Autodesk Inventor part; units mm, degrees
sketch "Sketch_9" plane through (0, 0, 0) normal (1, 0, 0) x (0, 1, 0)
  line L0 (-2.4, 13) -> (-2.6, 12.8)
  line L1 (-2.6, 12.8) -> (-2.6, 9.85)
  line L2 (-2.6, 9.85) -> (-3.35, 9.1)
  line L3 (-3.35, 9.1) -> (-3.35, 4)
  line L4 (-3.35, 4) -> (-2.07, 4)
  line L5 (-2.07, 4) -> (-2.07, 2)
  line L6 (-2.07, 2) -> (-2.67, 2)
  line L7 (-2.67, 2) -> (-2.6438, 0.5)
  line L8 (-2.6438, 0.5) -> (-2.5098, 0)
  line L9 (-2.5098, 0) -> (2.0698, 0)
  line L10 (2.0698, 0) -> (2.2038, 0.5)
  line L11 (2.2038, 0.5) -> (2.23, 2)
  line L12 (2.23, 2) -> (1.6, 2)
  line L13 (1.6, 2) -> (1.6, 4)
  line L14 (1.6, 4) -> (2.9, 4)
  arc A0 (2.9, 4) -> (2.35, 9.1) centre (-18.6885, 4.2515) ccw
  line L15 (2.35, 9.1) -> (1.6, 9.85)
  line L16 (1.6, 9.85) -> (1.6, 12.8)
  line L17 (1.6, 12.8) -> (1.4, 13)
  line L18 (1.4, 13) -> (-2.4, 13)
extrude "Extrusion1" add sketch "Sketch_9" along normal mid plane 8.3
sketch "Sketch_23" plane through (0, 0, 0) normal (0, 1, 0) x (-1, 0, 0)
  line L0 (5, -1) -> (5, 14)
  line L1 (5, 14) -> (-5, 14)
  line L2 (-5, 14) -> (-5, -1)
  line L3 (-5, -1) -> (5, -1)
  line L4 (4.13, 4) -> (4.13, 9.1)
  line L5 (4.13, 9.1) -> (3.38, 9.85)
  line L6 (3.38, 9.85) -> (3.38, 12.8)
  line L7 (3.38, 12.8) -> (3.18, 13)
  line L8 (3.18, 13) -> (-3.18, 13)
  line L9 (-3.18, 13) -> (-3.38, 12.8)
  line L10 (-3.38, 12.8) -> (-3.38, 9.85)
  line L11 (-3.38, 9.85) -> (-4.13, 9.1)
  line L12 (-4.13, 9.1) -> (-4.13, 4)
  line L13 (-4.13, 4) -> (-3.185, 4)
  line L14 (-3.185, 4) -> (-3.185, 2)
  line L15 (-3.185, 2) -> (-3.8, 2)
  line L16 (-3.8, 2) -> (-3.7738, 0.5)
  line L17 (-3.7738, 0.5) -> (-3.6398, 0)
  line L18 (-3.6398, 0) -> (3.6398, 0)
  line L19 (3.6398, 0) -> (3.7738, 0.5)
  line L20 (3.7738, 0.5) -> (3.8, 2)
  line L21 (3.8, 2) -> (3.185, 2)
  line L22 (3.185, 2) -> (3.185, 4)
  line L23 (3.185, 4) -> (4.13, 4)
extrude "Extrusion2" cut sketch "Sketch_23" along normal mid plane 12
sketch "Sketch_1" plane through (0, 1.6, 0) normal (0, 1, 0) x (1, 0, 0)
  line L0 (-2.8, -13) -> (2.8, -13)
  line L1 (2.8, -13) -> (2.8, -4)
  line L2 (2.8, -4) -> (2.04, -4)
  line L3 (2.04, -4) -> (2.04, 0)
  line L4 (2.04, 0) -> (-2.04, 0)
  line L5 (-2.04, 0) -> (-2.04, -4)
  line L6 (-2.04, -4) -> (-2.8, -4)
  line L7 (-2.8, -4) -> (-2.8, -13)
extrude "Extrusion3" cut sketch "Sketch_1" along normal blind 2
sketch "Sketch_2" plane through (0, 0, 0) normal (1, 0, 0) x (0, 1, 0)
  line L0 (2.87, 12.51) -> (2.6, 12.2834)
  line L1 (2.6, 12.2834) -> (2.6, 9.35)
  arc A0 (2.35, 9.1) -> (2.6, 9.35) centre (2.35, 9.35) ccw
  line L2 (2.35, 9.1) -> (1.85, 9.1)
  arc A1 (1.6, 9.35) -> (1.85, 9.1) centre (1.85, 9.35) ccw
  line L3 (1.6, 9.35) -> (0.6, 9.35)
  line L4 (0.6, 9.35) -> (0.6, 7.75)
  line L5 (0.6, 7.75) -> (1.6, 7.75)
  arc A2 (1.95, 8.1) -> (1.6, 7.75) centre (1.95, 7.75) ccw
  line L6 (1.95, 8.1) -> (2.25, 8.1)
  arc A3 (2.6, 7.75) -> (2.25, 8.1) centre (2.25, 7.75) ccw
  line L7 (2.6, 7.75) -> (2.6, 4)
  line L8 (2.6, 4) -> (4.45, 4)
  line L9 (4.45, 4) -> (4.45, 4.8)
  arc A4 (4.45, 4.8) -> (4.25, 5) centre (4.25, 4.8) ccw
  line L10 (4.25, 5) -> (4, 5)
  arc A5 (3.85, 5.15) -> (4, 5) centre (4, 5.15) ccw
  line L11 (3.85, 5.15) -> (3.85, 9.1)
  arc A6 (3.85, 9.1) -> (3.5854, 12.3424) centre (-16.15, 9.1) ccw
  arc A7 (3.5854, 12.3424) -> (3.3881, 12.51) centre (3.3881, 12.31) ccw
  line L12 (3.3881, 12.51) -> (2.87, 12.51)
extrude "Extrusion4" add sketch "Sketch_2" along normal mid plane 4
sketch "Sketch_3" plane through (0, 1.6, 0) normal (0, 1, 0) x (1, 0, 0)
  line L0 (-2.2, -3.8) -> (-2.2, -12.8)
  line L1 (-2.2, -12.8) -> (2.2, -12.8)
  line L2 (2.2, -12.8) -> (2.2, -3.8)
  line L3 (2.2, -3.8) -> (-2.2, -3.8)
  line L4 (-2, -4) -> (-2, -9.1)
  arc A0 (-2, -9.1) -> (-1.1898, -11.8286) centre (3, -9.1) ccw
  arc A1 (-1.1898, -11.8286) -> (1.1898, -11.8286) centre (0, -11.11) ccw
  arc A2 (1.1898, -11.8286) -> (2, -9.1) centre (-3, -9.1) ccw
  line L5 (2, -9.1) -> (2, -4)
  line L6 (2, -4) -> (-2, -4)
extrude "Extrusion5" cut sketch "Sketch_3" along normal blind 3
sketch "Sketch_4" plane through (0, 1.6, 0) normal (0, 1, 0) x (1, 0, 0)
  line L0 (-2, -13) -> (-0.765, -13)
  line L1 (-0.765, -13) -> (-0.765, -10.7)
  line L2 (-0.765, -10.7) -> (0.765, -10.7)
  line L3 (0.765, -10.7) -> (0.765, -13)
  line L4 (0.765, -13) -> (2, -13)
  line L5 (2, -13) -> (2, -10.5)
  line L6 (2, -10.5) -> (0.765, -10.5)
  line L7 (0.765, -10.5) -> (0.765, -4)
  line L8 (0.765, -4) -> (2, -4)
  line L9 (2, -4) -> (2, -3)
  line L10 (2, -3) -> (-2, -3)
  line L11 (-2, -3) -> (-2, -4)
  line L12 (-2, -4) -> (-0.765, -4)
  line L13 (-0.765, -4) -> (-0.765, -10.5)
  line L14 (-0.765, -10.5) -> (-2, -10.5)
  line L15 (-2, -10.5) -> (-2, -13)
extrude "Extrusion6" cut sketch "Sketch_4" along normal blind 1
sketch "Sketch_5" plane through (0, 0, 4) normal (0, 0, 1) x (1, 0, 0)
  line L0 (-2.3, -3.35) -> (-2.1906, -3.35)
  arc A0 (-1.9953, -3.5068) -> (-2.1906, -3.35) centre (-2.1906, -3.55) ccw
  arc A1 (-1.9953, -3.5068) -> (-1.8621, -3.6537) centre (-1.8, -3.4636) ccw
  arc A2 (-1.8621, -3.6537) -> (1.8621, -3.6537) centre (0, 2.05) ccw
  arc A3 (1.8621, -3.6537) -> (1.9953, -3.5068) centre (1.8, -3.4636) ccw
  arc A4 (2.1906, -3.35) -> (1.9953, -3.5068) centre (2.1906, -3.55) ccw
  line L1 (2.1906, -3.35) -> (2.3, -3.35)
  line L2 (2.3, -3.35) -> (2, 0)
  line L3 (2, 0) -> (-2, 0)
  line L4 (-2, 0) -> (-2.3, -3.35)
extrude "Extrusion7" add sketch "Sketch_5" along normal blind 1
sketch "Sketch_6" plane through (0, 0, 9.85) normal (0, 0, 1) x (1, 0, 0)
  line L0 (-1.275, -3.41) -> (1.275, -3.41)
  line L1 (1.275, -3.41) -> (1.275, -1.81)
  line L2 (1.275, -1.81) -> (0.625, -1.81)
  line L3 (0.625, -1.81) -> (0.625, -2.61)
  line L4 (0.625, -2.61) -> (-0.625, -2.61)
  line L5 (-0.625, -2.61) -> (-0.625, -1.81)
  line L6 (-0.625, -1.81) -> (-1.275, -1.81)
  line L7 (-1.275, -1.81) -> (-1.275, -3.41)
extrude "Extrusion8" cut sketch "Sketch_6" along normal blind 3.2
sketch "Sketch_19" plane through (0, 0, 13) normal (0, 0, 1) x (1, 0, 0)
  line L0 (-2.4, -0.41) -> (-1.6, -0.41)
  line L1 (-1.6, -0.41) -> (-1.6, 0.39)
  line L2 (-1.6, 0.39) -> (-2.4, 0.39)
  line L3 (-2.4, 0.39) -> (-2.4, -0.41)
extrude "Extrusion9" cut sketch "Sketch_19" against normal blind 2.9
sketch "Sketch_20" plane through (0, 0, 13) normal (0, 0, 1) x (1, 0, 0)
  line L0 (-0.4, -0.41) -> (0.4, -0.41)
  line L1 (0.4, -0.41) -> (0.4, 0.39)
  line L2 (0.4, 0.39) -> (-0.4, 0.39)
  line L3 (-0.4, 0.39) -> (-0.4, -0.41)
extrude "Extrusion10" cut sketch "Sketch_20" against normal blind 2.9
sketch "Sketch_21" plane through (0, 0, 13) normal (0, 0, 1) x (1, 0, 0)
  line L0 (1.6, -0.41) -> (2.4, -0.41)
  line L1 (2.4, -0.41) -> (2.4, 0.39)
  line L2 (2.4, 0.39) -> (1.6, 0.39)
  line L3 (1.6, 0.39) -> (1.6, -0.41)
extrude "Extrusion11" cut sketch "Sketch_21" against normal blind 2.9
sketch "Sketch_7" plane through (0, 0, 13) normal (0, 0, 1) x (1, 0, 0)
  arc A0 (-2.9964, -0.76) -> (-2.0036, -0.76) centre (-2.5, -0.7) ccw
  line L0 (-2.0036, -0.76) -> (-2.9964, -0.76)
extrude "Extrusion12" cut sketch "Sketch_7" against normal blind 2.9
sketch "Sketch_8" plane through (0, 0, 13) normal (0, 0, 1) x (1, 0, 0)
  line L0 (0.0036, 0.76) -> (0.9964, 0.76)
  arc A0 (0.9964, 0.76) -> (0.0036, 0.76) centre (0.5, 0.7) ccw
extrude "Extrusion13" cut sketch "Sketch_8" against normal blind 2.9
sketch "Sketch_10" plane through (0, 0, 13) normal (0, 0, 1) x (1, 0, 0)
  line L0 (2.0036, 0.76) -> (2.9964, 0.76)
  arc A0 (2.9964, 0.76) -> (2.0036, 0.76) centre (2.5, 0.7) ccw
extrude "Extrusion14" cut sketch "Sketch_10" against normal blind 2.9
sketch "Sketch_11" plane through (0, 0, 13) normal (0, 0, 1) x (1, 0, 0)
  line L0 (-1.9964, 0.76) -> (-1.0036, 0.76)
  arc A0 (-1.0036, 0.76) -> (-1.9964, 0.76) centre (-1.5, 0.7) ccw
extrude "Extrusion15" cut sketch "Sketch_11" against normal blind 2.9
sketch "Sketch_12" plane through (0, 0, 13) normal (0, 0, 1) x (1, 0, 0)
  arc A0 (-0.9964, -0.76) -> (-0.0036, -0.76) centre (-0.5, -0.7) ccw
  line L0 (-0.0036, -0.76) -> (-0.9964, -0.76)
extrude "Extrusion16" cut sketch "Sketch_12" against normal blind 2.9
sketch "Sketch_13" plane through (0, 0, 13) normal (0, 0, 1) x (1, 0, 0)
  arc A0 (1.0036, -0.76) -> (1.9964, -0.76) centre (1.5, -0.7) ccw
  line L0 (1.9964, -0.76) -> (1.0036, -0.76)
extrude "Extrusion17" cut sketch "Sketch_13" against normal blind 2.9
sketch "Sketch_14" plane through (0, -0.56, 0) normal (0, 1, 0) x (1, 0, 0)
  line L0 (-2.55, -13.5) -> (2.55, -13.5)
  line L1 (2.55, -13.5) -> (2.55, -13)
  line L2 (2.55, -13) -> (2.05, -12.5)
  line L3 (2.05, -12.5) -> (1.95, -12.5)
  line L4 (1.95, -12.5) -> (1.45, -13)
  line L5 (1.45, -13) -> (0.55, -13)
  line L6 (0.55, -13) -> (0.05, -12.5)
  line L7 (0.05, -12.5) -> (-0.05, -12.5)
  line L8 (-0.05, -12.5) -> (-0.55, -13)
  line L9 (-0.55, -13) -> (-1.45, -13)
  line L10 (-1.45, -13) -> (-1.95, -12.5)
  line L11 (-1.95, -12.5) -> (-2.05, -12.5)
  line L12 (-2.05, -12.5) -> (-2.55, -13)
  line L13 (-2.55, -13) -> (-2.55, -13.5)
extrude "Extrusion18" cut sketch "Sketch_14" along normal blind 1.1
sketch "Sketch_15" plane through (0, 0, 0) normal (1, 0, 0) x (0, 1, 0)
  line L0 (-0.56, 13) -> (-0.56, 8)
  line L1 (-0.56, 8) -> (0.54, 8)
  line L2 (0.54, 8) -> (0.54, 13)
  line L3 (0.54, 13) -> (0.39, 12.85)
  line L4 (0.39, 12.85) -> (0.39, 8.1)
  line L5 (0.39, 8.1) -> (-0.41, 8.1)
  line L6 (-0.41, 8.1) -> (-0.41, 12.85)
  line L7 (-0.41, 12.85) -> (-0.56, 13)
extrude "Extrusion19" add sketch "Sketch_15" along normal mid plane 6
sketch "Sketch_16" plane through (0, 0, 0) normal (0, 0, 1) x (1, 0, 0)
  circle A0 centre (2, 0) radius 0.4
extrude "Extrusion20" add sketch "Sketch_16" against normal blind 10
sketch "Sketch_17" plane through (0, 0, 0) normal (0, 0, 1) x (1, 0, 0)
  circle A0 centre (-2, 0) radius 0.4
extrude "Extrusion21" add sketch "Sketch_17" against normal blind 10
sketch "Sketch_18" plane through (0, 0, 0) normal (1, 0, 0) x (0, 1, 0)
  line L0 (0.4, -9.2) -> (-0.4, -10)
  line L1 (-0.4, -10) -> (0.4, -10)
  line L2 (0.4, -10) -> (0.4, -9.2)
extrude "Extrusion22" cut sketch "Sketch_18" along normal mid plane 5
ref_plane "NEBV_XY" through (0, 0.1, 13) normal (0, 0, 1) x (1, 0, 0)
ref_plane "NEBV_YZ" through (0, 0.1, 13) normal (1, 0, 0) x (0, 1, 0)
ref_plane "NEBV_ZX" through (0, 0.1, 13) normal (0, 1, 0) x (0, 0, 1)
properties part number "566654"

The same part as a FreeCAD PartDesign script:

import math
import FreeCAD as App
import Part
import Sketcher

V = App.Vector
Q = App.Units.Quantity


def add_polygon(sketch, points):
    """Adds a closed chain of lines whose ends are joined by coincident constraints."""
    first, n = sketch.GeometryCount, len(points)
    for a, b in zip(points, points[1:] + points[:1]):
        sketch.addGeometry(Part.LineSegment(App.Vector(*a, 0), App.Vector(*b, 0)), False)
    for i in range(n):
        sketch.addConstraint(Sketcher.Constraint("Coincident", first + i, 2, first + (i + 1) % n, 1))

doc = App.newDocument("Part")
body = doc.addObject("PartDesign::Body", "Body")

sketch1 = body.newObject("Sketcher::SketchObject", "Sketch")
sketch1.AttachmentSupport = (doc.getObject("YZ_Plane"), [""])
sketch1.MapMode = "FlatFace"
sketch1.addGeometry([
    Part.LineSegment(V(1.4, 13, 0), V(-2.4, 13, 0)),
    Part.LineSegment(V(-2.4, 13, 0), V(-2.6, 12.8, 0)),
    Part.LineSegment(V(-2.6, 12.8, 0), V(-2.6, 9.85, 0)),
    Part.LineSegment(V(-2.6, 9.85, 0), V(-3.35, 9.1, 0)),
    Part.LineSegment(V(-3.35, 9.1, 0), V(-3.35, 4, 0)),
    Part.LineSegment(V(-3.35, 4, 0), V(-2.07, 4, 0)),
    Part.LineSegment(V(-2.07, 4, 0), V(-2.07, 2, 0)),
    Part.LineSegment(V(-2.07, 2, 0), V(-2.67, 2, 0)),
    Part.LineSegment(V(-2.67, 2, 0), V(-2.64, 0.5, 0)),
    Part.LineSegment(V(-2.64, 0.5, 0), V(-2.51, 0, 0)),
    Part.LineSegment(V(-2.51, 0, 0), V(2.07, 0, 0)),
    Part.LineSegment(V(2.07, 0, 0), V(2.2, 0.5, 0)),
    Part.LineSegment(V(2.2, 0.5, 0), V(2.23, 2, 0)),
    Part.LineSegment(V(2.23, 2, 0), V(1.6, 2, 0)),
    Part.LineSegment(V(1.6, 2, 0), V(1.6, 4, 0)),
    Part.LineSegment(V(1.6, 4, 0), V(2.9, 4, 0)),
    Part.ArcOfCircle(Part.Circle(V(-18.69, 4.25, 0), V(0, 0, 1), 21.59), math.radians(-0.67), math.radians(12.98)),
    Part.LineSegment(V(2.35, 9.1, 0), V(1.6, 9.85, 0)),
    Part.LineSegment(V(1.6, 9.85, 0), V(1.6, 12.8, 0)),
    Part.LineSegment(V(1.6, 12.8, 0), V(1.4, 13, 0)),
], False)
sketch1.addConstraint([
    Sketcher.Constraint("Coincident", 0, 2, 1, 1),
    Sketcher.Constraint("Coincident", 1, 2, 2, 1),
    Sketcher.Constraint("Coincident", 2, 2, 3, 1),
    Sketcher.Constraint("Coincident", 3, 2, 4, 1),
    Sketcher.Constraint("Coincident", 4, 2, 5, 1),
    Sketcher.Constraint("Coincident", 5, 2, 6, 1),
    Sketcher.Constraint("Coincident", 6, 2, 7, 1),
    Sketcher.Constraint("Coincident", 7, 2, 8, 1),
    Sketcher.Constraint("Coincident", 8, 2, 9, 1),
    Sketcher.Constraint("Coincident", 9, 2, 10, 1),
    Sketcher.Constraint("Coincident", 10, 2, 11, 1),
    Sketcher.Constraint("Coincident", 11, 2, 12, 1),
    Sketcher.Constraint("Coincident", 12, 2, 13, 1),
    Sketcher.Constraint("Coincident", 13, 2, 14, 1),
    Sketcher.Constraint("Coincident", 14, 2, 15, 1),
    Sketcher.Constraint("Coincident", 15, 2, 16, 1),
    Sketcher.Constraint("Coincident", 16, 2, 17, 1),
    Sketcher.Constraint("Coincident", 17, 2, 18, 1),
    Sketcher.Constraint("Coincident", 18, 2, 19, 1),
    Sketcher.Constraint("Coincident", 19, 2, 0, 1),
    Sketcher.Constraint("Horizontal", 0),
    Sketcher.Constraint("Vertical", 2),
    Sketcher.Constraint("Vertical", 4),
    Sketcher.Constraint("Horizontal", 5),
    Sketcher.Constraint("Vertical", 6),
    Sketcher.Constraint("Horizontal", 7),
    Sketcher.Constraint("Horizontal", 10),
    Sketcher.Constraint("Horizontal", 13),
    Sketcher.Constraint("Vertical", 14),
    Sketcher.Constraint("Horizontal", 15),
    Sketcher.Constraint("Vertical", 18),
    Sketcher.Constraint("PointOnObject", 9, 2, -1),
    Sketcher.Constraint("Parallel", 1, 3),
    Sketcher.Constraint("Perpendicular", 3, 17),
    Sketcher.Constraint("Parallel", 17, 19),
    Sketcher.Constraint("Horizontal", 8, 2, 11, 2),
    Sketcher.Constraint("Horizontal", 7, 2, 12, 2),
    Sketcher.Constraint("Horizontal", 5, 2, 14, 2),
    Sketcher.Constraint("Horizontal", 3, 2, 16, 2),
    Sketcher.Constraint("Horizontal", 2, 2, 17, 2),
    Sketcher.Constraint("Horizontal", 1, 2, 18, 2),
    Sketcher.Constraint("Vertical", 14, 2, 17, 2),
    Sketcher.Constraint("Equal", 9, 11),
    Sketcher.Constraint("Equal", 8, 12),
    Sketcher.Constraint("Equal", 3, 17),
    Sketcher.Constraint("DistanceY", 6, 2, 6, 1, 2.0),
    Sketcher.Constraint("Angle", 8, Q("-88.9993 deg")),
    Sketcher.Constraint("Radius", 16, 21.59),
    Sketcher.Constraint("DistanceX", 0, 2, 0, 1, 3.8),
    Sketcher.Constraint("DistanceX", 7, 2, 7, 1, 0.6),
    Sketcher.Constraint("DistanceX", 15, 1, 15, 2, 1.3),
    Sketcher.Constraint("DistanceY", 4, 2, 4, 1, 5.1),
    Sketcher.Constraint("DistanceY", -1, 1, 0, 2, 13.0),
    Sketcher.Constraint("DistanceY", -1, 1, 4, 2, 4.0),
    Sketcher.Constraint("DistanceX", 0, 2, 17, 2, 4.0),
    Sketcher.Constraint("DistanceX", 5, 1, 5, 2, 1.28),
    Sketcher.Constraint("DistanceX", 13, 2, 13, 1, 0.63),
    Sketcher.Constraint("DistanceY", 2, 2, 2, 1, 2.95),
    Sketcher.Constraint("DistanceX", 0, 2, -1, 1, 2.4),
    Sketcher.Constraint("DistanceY", -1, 1, 8, 2, 0.5),
    Sketcher.Constraint("DistanceX", 10, 1, 10, 2, 4.5796),
])
pad1 = body.newObject("PartDesign::Pad", "Pad")
pad1.Profile = sketch1
pad1.Length = 8.3
pad1.Midplane = True

sketch2 = body.newObject("Sketcher::SketchObject", "Sketch001")
sketch2.AttachmentSupport = (doc.getObject("XZ_Plane"), [""])
sketch2.MapMode = "FlatFace"
add_polygon(sketch2, [(5, -1), (-5, -1), (-5, 14), (5, 14)])
add_polygon(sketch2, [(-4.13, 9.1), (-4.13, 4), (-3.19, 4), (-3.19, 2), (-3.8, 2), (-3.77, 0.5), (-3.64, 0), (3.64, 0), (3.77, 0.5), (3.8, 2), (3.19, 2), (3.19, 4), (4.13, 4), (4.13, 9.1), (3.38, 9.85), (3.38, 12.8), (3.18, 13), (-3.18, 13), (-3.38, 12.8), (-3.38, 9.85)])
sketch2.addConstraint([
    Sketcher.Constraint("Horizontal", 0),
    Sketcher.Constraint("Vertical", 1),
    Sketcher.Constraint("Horizontal", 2),
    Sketcher.Constraint("Vertical", 3),
    Sketcher.Constraint("Vertical", 4),
    Sketcher.Constraint("Horizontal", 5),
    Sketcher.Constraint("Vertical", 6),
    Sketcher.Constraint("Horizontal", 7),
    Sketcher.Constraint("Horizontal", 10),
    Sketcher.Constraint("Horizontal", 13),
    Sketcher.Constraint("Vertical", 14),
    Sketcher.Constraint("Horizontal", 15),
    Sketcher.Constraint("Vertical", 16),
    Sketcher.Constraint("Vertical", 18),
    Sketcher.Constraint("Horizontal", 20),
    Sketcher.Constraint("Vertical", 22),
    Sketcher.Constraint("Symmetric", 9, 2, 10, 2, -1, 1),
    Sketcher.Constraint("Symmetric", 8, 2, 11, 2, -2),
    Sketcher.Constraint("Symmetric", 7, 2, 12, 2, -2),
    Sketcher.Constraint("Symmetric", 5, 2, 14, 2, -2),
    Sketcher.Constraint("Symmetric", 18, 2, 21, 2, -2),
    Sketcher.Constraint("Symmetric", 16, 2, 23, 2, -2),
    Sketcher.Constraint("Parallel", 17, 19),
    Sketcher.Constraint("Perpendicular", 19, 21),
    Sketcher.Constraint("Parallel", 21, 23),
    Sketcher.Constraint("Horizontal", 17, 2, 22, 2),
    Sketcher.Constraint("DistanceX", 0, 2, 0, 1, 10.0),
    Sketcher.Constraint("DistanceY", 1, 1, 1, 2, 15.0),
    Sketcher.Constraint("DistanceY", 6, 2, 6, 1, 2.0),
    Sketcher.Constraint("Angle", 8, Q("-88.9993 deg")),
    Sketcher.Constraint("DistanceY", 4, 2, 4, 1, 5.1),
    Sketcher.Constraint("DistanceX", 0, 2, -1, 1, 5.0),
    Sketcher.Constraint("DistanceY", 0, 2, -1, 1, 1.0),
    Sketcher.Constraint("DistanceY", -1, 1, 4, 2, 4.0),
    Sketcher.Constraint("DistanceY", -1, 1, 19, 2, 13.0),
    Sketcher.Constraint("DistanceX", 20, 2, 20, 1, 6.36),
    Sketcher.Constraint("DistanceY", 18, 1, 18, 2, 2.95),
    Sketcher.Constraint("DistanceX", 7, 2, -1, 1, 3.8),
    Sketcher.Constraint("DistanceY", -1, 1, 8, 2, 0.5),
    Sketcher.Constraint("DistanceY", -1, 1, 18, 2, 12.8),
    Sketcher.Constraint("DistanceX", 5, 1, 5, 2, 0.945),
    Sketcher.Constraint("DistanceX", 10, 1, 10, 2, 7.2796),
])
pocket1 = body.newObject("PartDesign::Pocket", "Pocket")
pocket1.Profile = sketch2
pocket1.Length = 12
pocket1.Midplane = True

sketch3 = body.newObject("Sketcher::SketchObject", "Sketch002")
sketch3.AttachmentSupport = (doc.getObject("XZ_Plane"), [""])
sketch3.MapMode = "FlatFace"
sketch3.AttachmentOffset = App.Placement(V(0, 0, -1.6), App.Rotation())
add_polygon(sketch3, [(-2.8, 4), (-2.8, 13), (2.8, 13), (2.8, 4), (2, 4), (2, 0), (-2, 0), (-2, 4)])
sketch3.addConstraint([
    Sketcher.Constraint("Vertical", 0),
    Sketcher.Constraint("Horizontal", 1),
    Sketcher.Constraint("Vertical", 2),
    Sketcher.Constraint("Horizontal", 3),
    Sketcher.Constraint("Vertical", 4),
    Sketcher.Constraint("Horizontal", 5),
    Sketcher.Constraint("Vertical", 6),
    Sketcher.Constraint("Horizontal", 7),
    Sketcher.Constraint("Symmetric", 4, 2, 5, 2, -1, 1),
    Sketcher.Constraint("Symmetric", 2, 2, 7, 2, -2),
    Sketcher.Constraint("DistanceY", 0, 1, 0, 2, 9.0),
    Sketcher.Constraint("DistanceY", 4, 2, 4, 1, 4.0),
    Sketcher.Constraint("DistanceX", 1, 1, 1, 2, 5.6),
    Sketcher.Constraint("DistanceX", 3, 2, 3, 1, 0.76),
])
pocket2 = body.newObject("PartDesign::Pocket", "Pocket001")
pocket2.Profile = sketch3
pocket2.Length = 2

sketch4 = body.newObject("Sketcher::SketchObject", "Sketch003")
sketch4.AttachmentSupport = (doc.getObject("YZ_Plane"), [""])
sketch4.MapMode = "FlatFace"
sketch4.addGeometry([
    Part.LineSegment(V(3.39, 12.51, 0), V(2.87, 12.51, 0)),
    Part.LineSegment(V(2.87, 12.51, 0), V(2.6, 12.28, 0)),
    Part.LineSegment(V(2.6, 12.28, 0), V(2.6, 9.35, 0)),
    Part.ArcOfCircle(Part.Circle(V(2.35, 9.35, 0), V(0, 0, 1), 0.25), math.radians(-90), math.radians(0)),
    Part.LineSegment(V(2.35, 9.1, 0), V(1.85, 9.1, 0)),
    Part.ArcOfCircle(Part.Circle(V(1.85, 9.35, 0), V(0, 0, 1), 0.25), math.radians(180), math.radians(270)),
    Part.LineSegment(V(1.6, 9.35, 0), V(0.6, 9.35, 0)),
    Part.LineSegment(V(0.6, 9.35, 0), V(0.6, 7.75, 0)),
    Part.LineSegment(V(0.6, 7.75, 0), V(1.6, 7.75, 0)),
    Part.ArcOfCircle(Part.Circle(V(1.95, 7.75, 0), V(0, 0, 1), 0.35), math.radians(90), math.radians(180)),
    Part.LineSegment(V(1.95, 8.1, 0), V(2.25, 8.1, 0)),
    Part.ArcOfCircle(Part.Circle(V(2.25, 7.75, 0), V(0, 0, 1), 0.35), math.radians(0), math.radians(90)),
    Part.LineSegment(V(2.6, 7.75, 0), V(2.6, 4, 0)),
    Part.LineSegment(V(2.6, 4, 0), V(4.45, 4, 0)),
    Part.LineSegment(V(4.45, 4, 0), V(4.45, 4.8, 0)),
    Part.ArcOfCircle(Part.Circle(V(4.25, 4.8, 0), V(0, 0, 1), 0.2), math.radians(0), math.radians(90)),
    Part.LineSegment(V(4.25, 5, 0), V(4, 5, 0)),
    Part.ArcOfCircle(Part.Circle(V(4, 5.15, 0), V(0, 0, 1), 0.15), math.radians(180), math.radians(270)),
    Part.LineSegment(V(3.85, 5.15, 0), V(3.85, 9.1, 0)),
    Part.ArcOfCircle(Part.Circle(V(-16.15, 9.1, 0), V(0, 0, 1), 20), math.radians(0), math.radians(9.33)),
    Part.ArcOfCircle(Part.Circle(V(3.39, 12.31, 0), V(0, 0, 1), 0.2), math.radians(9), math.radians(90)),
], False)
sketch4.addConstraint([
    Sketcher.Constraint("Coincident", 0, 2, 1, 1),
    Sketcher.Constraint("Coincident", 1, 2, 2, 1),
    Sketcher.Constraint("Tangent", 2, 2, 3, 2),
    Sketcher.Constraint("Tangent", 3, 1, 4, 1),
    Sketcher.Constraint("Tangent", 4, 2, 5, 2),
    Sketcher.Constraint("Coincident", 5, 1, 6, 1),
    Sketcher.Constraint("Coincident", 6, 2, 7, 1),
    Sketcher.Constraint("Coincident", 7, 2, 8, 1),
    Sketcher.Constraint("Coincident", 8, 2, 9, 2),
    Sketcher.Constraint("Tangent", 9, 1, 10, 1),
    Sketcher.Constraint("Tangent", 10, 2, 11, 2),
    Sketcher.Constraint("Tangent", 11, 1, 12, 1),
    Sketcher.Constraint("Coincident", 12, 2, 13, 1),
    Sketcher.Constraint("Coincident", 13, 2, 14, 1),
    Sketcher.Constraint("Tangent", 14, 2, 15, 1),
    Sketcher.Constraint("Tangent", 15, 2, 16, 1),
    Sketcher.Constraint("Tangent", 16, 2, 17, 2),
    Sketcher.Constraint("Tangent", 17, 1, 18, 1),
    Sketcher.Constraint("Tangent", 18, 2, 19, 1),
    Sketcher.Constraint("Tangent", 19, 2, 20, 1),
    Sketcher.Constraint("Tangent", 20, 2, 0, 1),
    Sketcher.Constraint("Horizontal", 0),
    Sketcher.Constraint("Vertical", 2),
    Sketcher.Constraint("Horizontal", 4),
    Sketcher.Constraint("Horizontal", 6),
    Sketcher.Constraint("Vertical", 7),
    Sketcher.Constraint("Horizontal", 8),
    Sketcher.Constraint("Horizontal", 10),
    Sketcher.Constraint("Vertical", 12),
    Sketcher.Constraint("Horizontal", 13),
    Sketcher.Constraint("Vertical", 14),
    Sketcher.Constraint("Horizontal", 16),
    Sketcher.Constraint("Vertical", 18),
    Sketcher.Constraint("Equal", 3, 5),
    Sketcher.Constraint("Equal", 9, 11),
    Sketcher.Constraint("Equal", 15, 20),
    Sketcher.Constraint("Horizontal", 19, 3, 3, 1),
    Sketcher.Constraint("Horizontal", 2, 2, 5, 1),
    Sketcher.Constraint("Horizontal", 11, 3, 7, 2),
    Sketcher.Constraint("Vertical", 5, 1, 8, 2),
    Sketcher.Constraint("Vertical", 2, 2, 11, 1),
    Sketcher.Constraint("Radius", 15, 0.2),
    Sketcher.Constraint("DistanceX", 6, 2, 6, 1, 1.0),
    Sketcher.Constraint("Radius", 3, 0.25),
    Sketcher.Constraint("Radius", 9, 0.35),
    Sketcher.Constraint("Radius", 17, 0.15),
    Sketcher.Constraint("DistanceX", 4, 2, 4, 1, 0.5),
    Sketcher.Constraint("DistanceY", 7, 2, 7, 1, 1.6),
    Sketcher.Constraint("DistanceY", 14, 1, 14, 2, 0.8),
    Sketcher.Constraint("DistanceX", -1, 1, 17, 3, 4.0),
    Sketcher.Constraint("DistanceY", -1, 1, 12, 2, 4.0),
    Sketcher.Constraint("DistanceX", 11, 3, 15, 3, 2.0),
    Sketcher.Constraint("DistanceX", 16, 2, 16, 1, 0.25),
    Sketcher.Constraint("DistanceY", 12, 2, 12, 1, 3.75),
    Sketcher.Constraint("Radius", 19, 19.9969),
    Sketcher.Constraint("DistanceX", 0, 2, 0, 1, 0.518),
    Sketcher.Constraint("DistanceY", -1, 1, 20, 3, 12.31),
    Sketcher.Constraint("DistanceY", 2, 2, 2, 1, 2.9334),
])
pad2 = body.newObject("PartDesign::Pad", "Pad001")
pad2.Profile = sketch4
pad2.Length = 4
pad2.Midplane = True

sketch5 = body.newObject("Sketcher::SketchObject", "Sketch004")
sketch5.AttachmentSupport = (doc.getObject("XZ_Plane"), [""])
sketch5.MapMode = "FlatFace"
sketch5.AttachmentOffset = App.Placement(V(0, 0, -1.6), App.Rotation())
add_polygon(sketch5, [(2.2, 3.8), (-2.2, 3.8), (-2.2, 12.8), (2.2, 12.8)])
sketch5.addGeometry(Part.LineSegment(V(-2, 9.1, 0), V(-2, 4, 0)), False)
sketch5.addGeometry(Part.LineSegment(V(-2, 4, 0), V(2, 4, 0)), False)
sketch5.addGeometry(Part.LineSegment(V(2, 4, 0), V(2, 9.1, 0)), False)
sketch5.addGeometry(Part.ArcOfCircle(Part.Circle(V(-3, 9.1, 0), V(0, 0, 1), 5), math.radians(0), math.radians(33)), False)
sketch5.addGeometry(Part.ArcOfCircle(Part.Circle(V(0, 11.1, 0), V(0, 0, 1), 1.4), math.radians(31), math.radians(149)), False)
sketch5.addGeometry(Part.ArcOfCircle(Part.Circle(V(3, 9.1, 0), V(0, 0, 1), 5), math.radians(147), math.radians(180)), False)
sketch5.addConstraint([
    Sketcher.Constraint("Coincident", 4, 2, 5, 1),
    Sketcher.Constraint("Coincident", 5, 2, 6, 1),
    Sketcher.Constraint("Tangent", 6, 2, 7, 1),
    Sketcher.Constraint("Coincident", 7, 2, 8, 1),
    Sketcher.Constraint("Coincident", 8, 2, 9, 1),
    Sketcher.Constraint("Tangent", 9, 2, 4, 1),
    Sketcher.Constraint("Horizontal", 0),
    Sketcher.Constraint("Vertical", 1),
    Sketcher.Constraint("Horizontal", 2),
    Sketcher.Constraint("Vertical", 3),
    Sketcher.Constraint("Vertical", 4),
    Sketcher.Constraint("Horizontal", 5),
    Sketcher.Constraint("Vertical", 6),
    Sketcher.Constraint("Equal", 7, 9),
    Sketcher.Constraint("Symmetric", 7, 3, 9, 3, -2),
    Sketcher.Constraint("PointOnObject", 8, 3, -2),
    Sketcher.Constraint("Radius", 7, 5.0),
    Sketcher.Constraint("DistanceX", 5, 1, 5, 2, 4.0),
    Sketcher.Constraint("DistanceY", 1, 1, 1, 2, 9.0),
    Sketcher.Constraint("Radius", 8, 1.39),
    Sketcher.Constraint("DistanceX", 0, 2, 0, 1, 4.4),
    Sketcher.Constraint("DistanceY", 4, 2, 4, 1, 5.1),
    Sketcher.Constraint("DistanceY", -1, 1, 4, 2, 4.0),
    Sketcher.Constraint("DistanceX", 0, 2, -1, 1, 2.2),
    Sketcher.Constraint("DistanceY", -1, 1, 0, 2, 3.8),
    Sketcher.Constraint("DistanceY", -1, 1, 8, 3, 11.11),
])
pocket3 = body.newObject("PartDesign::Pocket", "Pocket002")
pocket3.Profile = sketch5
pocket3.Length = 3

sketch6 = body.newObject("Sketcher::SketchObject", "Sketch005")
sketch6.AttachmentSupport = (doc.getObject("XZ_Plane"), [""])
sketch6.MapMode = "FlatFace"
sketch6.AttachmentOffset = App.Placement(V(0, 0, -1.6), App.Rotation())
add_polygon(sketch6, [(-2, 10.5), (-2, 13), (-0.8, 13), (-0.8, 10.7), (0.8, 10.7), (0.8, 13), (2, 13), (2, 10.5), (0.8, 10.5), (0.8, 4), (2, 4), (2, 3), (-2, 3), (-2, 4), (-0.8, 4), (-0.8, 10.5)])
sketch6.addConstraint([
    Sketcher.Constraint("Vertical", 0),
    Sketcher.Constraint("Horizontal", 1),
    Sketcher.Constraint("Vertical", 2),
    Sketcher.Constraint("Horizontal", 3),
    Sketcher.Constraint("Vertical", 4),
    Sketcher.Constraint("Horizontal", 5),
    Sketcher.Constraint("Vertical", 6),
    Sketcher.Constraint("Horizontal", 7),
    Sketcher.Constraint("Vertical", 8),
    Sketcher.Constraint("Horizontal", 9),
    Sketcher.Constraint("Vertical", 10),
    Sketcher.Constraint("Horizontal", 11),
    Sketcher.Constraint("Vertical", 12),
    Sketcher.Constraint("Horizontal", 13),
    Sketcher.Constraint("Vertical", 14),
    Sketcher.Constraint("Horizontal", 15),
    Sketcher.Constraint("Symmetric", 1, 2, 4, 2, -2),
    Sketcher.Constraint("Symmetric", 9, 2, 12, 2, -2),
    Sketcher.Constraint("Symmetric", 7, 2, 14, 2, -2),
    Sketcher.Constraint("Vertical", 4, 2, 7, 2),
    Sketcher.Constraint("Vertical", 6, 2, 9, 2),
    Sketcher.Constraint("Vertical", 0, 2, 11, 2),
    Sketcher.Constraint("DistanceX", 11, 2, 11, 1, 4.0),
    Sketcher.Constraint("DistanceY", 10, 2, 10, 1, 1.0),
    Sketcher.Constraint("DistanceY", 0, 1, 0, 2, 2.5),
    Sketcher.Constraint("DistanceY", 2, 2, 2, 1, 2.3),
    Sketcher.Constraint("DistanceY", 8, 2, 8, 1, 6.5),
    Sketcher.Constraint("DistanceY", -1, 1, 0, 2, 13.0),
    Sketcher.Constraint("DistanceX", 3, 1, 3, 2, 1.53),
])
pocket4 = body.newObject("PartDesign::Pocket", "Pocket003")
pocket4.Profile = sketch6
pocket4.Length = 1

sketch7 = body.newObject("Sketcher::SketchObject", "Sketch006")
sketch7.AttachmentSupport = (doc.getObject("XY_Plane"), [""])
sketch7.MapMode = "FlatFace"
sketch7.AttachmentOffset = App.Placement(V(0, 0, 4), App.Rotation())
sketch7.addGeometry([
    Part.LineSegment(V(-2, 0, 0), V(-2.3, -3.35, 0)),
    Part.LineSegment(V(-2.3, -3.35, 0), V(-2.19, -3.35, 0)),
    Part.ArcOfCircle(Part.Circle(V(-2.19, -3.55, 0), V(0, 0, 1), 0.2), math.radians(12), math.radians(90)),
    Part.ArcOfCircle(Part.Circle(V(-1.8, -3.46, 0), V(0, 0, 1), 0.2), math.radians(-168), math.radians(-108)),
    Part.ArcOfCircle(Part.Circle(V(0, 2.05, 0), V(0, 0, 1), 6), math.radians(-108), math.radians(-72)),
    Part.ArcOfCircle(Part.Circle(V(1.8, -3.46, 0), V(0, 0, 1), 0.2), math.radians(-72), math.radians(-12)),
    Part.ArcOfCircle(Part.Circle(V(2.19, -3.55, 0), V(0, 0, 1), 0.2), math.radians(90), math.radians(168)),
    Part.LineSegment(V(2.19, -3.35, 0), V(2.3, -3.35, 0)),
    Part.LineSegment(V(2.3, -3.35, 0), V(2, 0, 0)),
    Part.LineSegment(V(2, 0, 0), V(-2, 0, 0)),
], False)
sketch7.addConstraint([
    Sketcher.Constraint("Coincident", 0, 2, 1, 1),
    Sketcher.Constraint("Tangent", 1, 2, 2, 2),
    Sketcher.Constraint("Tangent", 2, 1, 3, 1),
    Sketcher.Constraint("Tangent", 3, 2, 4, 1),
    Sketcher.Constraint("Tangent", 4, 2, 5, 1),
    Sketcher.Constraint("Tangent", 5, 2, 6, 2),
    Sketcher.Constraint("Tangent", 6, 1, 7, 1),
    Sketcher.Constraint("Coincident", 7, 2, 8, 1),
    Sketcher.Constraint("Coincident", 8, 2, 9, 1),
    Sketcher.Constraint("Coincident", 9, 2, 0, 1),
    Sketcher.Constraint("Horizontal", 1),
    Sketcher.Constraint("Horizontal", 7),
    Sketcher.Constraint("Horizontal", 9),
    Sketcher.Constraint("Equal", 2, 3),
    Sketcher.Constraint("Equal", 3, 5),
    Sketcher.Constraint("Equal", 5, 6),
    Sketcher.Constraint("Symmetric", 8, 2, 9, 2, -1, 1),
    Sketcher.Constraint("Symmetric", 3, 3, 5, 3, -2),
    Sketcher.Constraint("Symmetric", 0, 2, 7, 2, -2),
    Sketcher.Constraint("Radius", 4, 6.0),
    Sketcher.Constraint("Radius", 2, 0.2),
    Sketcher.Constraint("DistanceX", 9, 2, 9, 1, 4.0),
    Sketcher.Constraint("DistanceX", 3, 3, -1, 1, 1.8),
    Sketcher.Constraint("DistanceX", 0, 2, -1, 1, 2.3),
    Sketcher.Constraint("DistanceY", 2, 3, 4, 3, 5.6),
    Sketcher.Constraint("DistanceY", 2, 3, -1, 1, 3.55),
])
pad3 = body.newObject("PartDesign::Pad", "Pad002")
pad3.Profile = sketch7
pad3.Length = 1

sketch8 = body.newObject("Sketcher::SketchObject", "Sketch007")
sketch8.AttachmentSupport = (doc.getObject("XY_Plane"), [""])
sketch8.MapMode = "FlatFace"
sketch8.AttachmentOffset = App.Placement(V(0, 0, 9.85), App.Rotation())
add_polygon(sketch8, [(-1.3, -1.8), (-1.3, -3.4), (1.3, -3.4), (1.3, -1.8), (0.6, -1.8), (0.6, -2.6), (-0.6, -2.6), (-0.6, -1.8)])
sketch8.addConstraint([
    Sketcher.Constraint("Vertical", 0),
    Sketcher.Constraint("Horizontal", 1),
    Sketcher.Constraint("Vertical", 2),
    Sketcher.Constraint("Horizontal", 3),
    Sketcher.Constraint("Vertical", 4),
    Sketcher.Constraint("Horizontal", 5),
    Sketcher.Constraint("Vertical", 6),
    Sketcher.Constraint("Horizontal", 7),
    Sketcher.Constraint("Symmetric", 3, 2, 6, 2, -2),
    Sketcher.Constraint("Equal", 3, 7),
    Sketcher.Constraint("DistanceY", 0, 2, 0, 1, 1.6),
    Sketcher.Constraint("DistanceY", 4, 2, 4, 1, 0.8),
    Sketcher.Constraint("DistanceX", 1, 1, 1, 2, 2.55),
    Sketcher.Constraint("DistanceX", 3, 2, 3, 1, 0.65),
    Sketcher.Constraint("DistanceY", 0, 2, -1, 1, 3.41),
])
pocket5 = body.newObject("PartDesign::Pocket", "Pocket004")
pocket5.Profile = sketch8
pocket5.Length = 3.2
pocket5.Reversed = True

sketch9 = body.newObject("Sketcher::SketchObject", "Sketch008")
sketch9.AttachmentSupport = (doc.getObject("XY_Plane"), [""])
sketch9.MapMode = "FlatFace"
sketch9.AttachmentOffset = App.Placement(V(0, 0, 13), App.Rotation())
add_polygon(sketch9, [(-2.4, 0.4), (-2.4, -0.4), (-1.6, -0.4), (-1.6, 0.4)])
sketch9.addConstraint([
    Sketcher.Constraint("Vertical", 0),
    Sketcher.Constraint("Horizontal", 1),
    Sketcher.Constraint("Vertical", 2),
    Sketcher.Constraint("Horizontal", 3),
    Sketcher.Constraint("Equal", 3, 0),
    Sketcher.Constraint("DistanceX", 1, 1, 1, 2, 0.8),
    Sketcher.Constraint("DistanceX", 0, 2, -1, 1, 2.4),
    Sketcher.Constraint("DistanceY", 0, 2, -1, 1, 0.41),
])
pocket6 = body.newObject("PartDesign::Pocket", "Pocket005")
pocket6.Profile = sketch9
pocket6.Length = 2.9

sketch10 = body.newObject("Sketcher::SketchObject", "Sketch009")
sketch10.AttachmentSupport = (doc.getObject("XY_Plane"), [""])
sketch10.MapMode = "FlatFace"
sketch10.AttachmentOffset = App.Placement(V(0, 0, 13), App.Rotation())
add_polygon(sketch10, [(-0.4, 0.4), (-0.4, -0.4), (0.4, -0.4), (0.4, 0.4)])
sketch10.addConstraint([
    Sketcher.Constraint("Vertical", 0),
    Sketcher.Constraint("Horizontal", 1),
    Sketcher.Constraint("Vertical", 2),
    Sketcher.Constraint("Horizontal", 3),
    Sketcher.Constraint("Equal", 3, 0),
    Sketcher.Constraint("DistanceX", 1, 1, 1, 2, 0.8),
    Sketcher.Constraint("DistanceX", 0, 2, -1, 1, 0.4),
    Sketcher.Constraint("DistanceY", 0, 2, -1, 1, 0.41),
])
pocket7 = body.newObject("PartDesign::Pocket", "Pocket006")
pocket7.Profile = sketch10
pocket7.Length = 2.9

sketch11 = body.newObject("Sketcher::SketchObject", "Sketch010")
sketch11.AttachmentSupport = (doc.getObject("XY_Plane"), [""])
sketch11.MapMode = "FlatFace"
sketch11.AttachmentOffset = App.Placement(V(0, 0, 13), App.Rotation())
add_polygon(sketch11, [(1.6, 0.4), (1.6, -0.4), (2.4, -0.4), (2.4, 0.4)])
sketch11.addConstraint([
    Sketcher.Constraint("Vertical", 0),
    Sketcher.Constraint("Horizontal", 1),
    Sketcher.Constraint("Vertical", 2),
    Sketcher.Constraint("Horizontal", 3),
    Sketcher.Constraint("Equal", 3, 0),
    Sketcher.Constraint("DistanceX", 1, 1, 1, 2, 0.8),
    Sketcher.Constraint("DistanceX", -1, 1, 0, 2, 1.6),
    Sketcher.Constraint("DistanceY", 0, 2, -1, 1, 0.41),
])
pocket8 = body.newObject("PartDesign::Pocket", "Pocket007")
pocket8.Profile = sketch11
pocket8.Length = 2.9

sketch12 = body.newObject("Sketcher::SketchObject", "Sketch011")
sketch12.AttachmentSupport = (doc.getObject("XY_Plane"), [""])
sketch12.MapMode = "FlatFace"
sketch12.AttachmentOffset = App.Placement(V(0, 0, 13), App.Rotation())
sketch12.addGeometry([
    Part.LineSegment(V(-2, -0.8, 0), V(-3, -0.8, 0)),
    Part.ArcOfCircle(Part.Circle(V(-2.5, -0.7, 0), V(0, 0, 1), 0.5), math.radians(-173), math.radians(-7)),
], False)
sketch12.addConstraint([
    Sketcher.Constraint("Coincident", 0, 1, 1, 2),
    Sketcher.Constraint("Coincident", 1, 1, 0, 2),
    Sketcher.Constraint("Horizontal", 0),
    Sketcher.Constraint("Radius", 1, 0.5),
    Sketcher.Constraint("DistanceX", 1, 3, -1, 1, 2.5),
    Sketcher.Constraint("DistanceY", 1, 3, -1, 1, 0.7),
    Sketcher.Constraint("DistanceY", 0, 1, -1, 1, 0.76),
])
pocket9 = body.newObject("PartDesign::Pocket", "Pocket008")
pocket9.Profile = sketch12
pocket9.Length = 2.9

sketch13 = body.newObject("Sketcher::SketchObject", "Sketch012")
sketch13.AttachmentSupport = (doc.getObject("XY_Plane"), [""])
sketch13.MapMode = "FlatFace"
sketch13.AttachmentOffset = App.Placement(V(0, 0, 13), App.Rotation())
sketch13.addGeometry([
    Part.ArcOfCircle(Part.Circle(V(0.5, 0.7, 0), V(0, 0, 1), 0.5), math.radians(7), math.radians(173)),
    Part.LineSegment(V(0, 0.8, 0), V(1, 0.8, 0)),
], False)
sketch13.addConstraint([
    Sketcher.Constraint("Coincident", 0, 1, 1, 2),
    Sketcher.Constraint("Coincident", 1, 1, 0, 2),
    Sketcher.Constraint("Horizontal", 1),
    Sketcher.Constraint("Radius", 0, 0.5),
    Sketcher.Constraint("DistanceX", -1, 1, 0, 3, 0.5),
    Sketcher.Constraint("DistanceY", -1, 1, 0, 3, 0.7),
    Sketcher.Constraint("DistanceY", -1, 1, 0, 1, 0.76),
])
pocket10 = body.newObject("PartDesign::Pocket", "Pocket009")
pocket10.Profile = sketch13
pocket10.Length = 2.9

sketch14 = body.newObject("Sketcher::SketchObject", "Sketch013")
sketch14.AttachmentSupport = (doc.getObject("XY_Plane"), [""])
sketch14.MapMode = "FlatFace"
sketch14.AttachmentOffset = App.Placement(V(0, 0, 13), App.Rotation())
sketch14.addGeometry([
    Part.ArcOfCircle(Part.Circle(V(2.5, 0.7, 0), V(0, 0, 1), 0.5), math.radians(7), math.radians(173)),
    Part.LineSegment(V(2, 0.8, 0), V(3, 0.8, 0)),
], False)
sketch14.addConstraint([
    Sketcher.Constraint("Coincident", 0, 1, 1, 2),
    Sketcher.Constraint("Coincident", 1, 1, 0, 2),
    Sketcher.Constraint("Horizontal", 1),
    Sketcher.Constraint("Radius", 0, 0.5),
    Sketcher.Constraint("DistanceX", -1, 1, 0, 3, 2.5),
    Sketcher.Constraint("DistanceY", -1, 1, 0, 3, 0.7),
    Sketcher.Constraint("DistanceY", -1, 1, 0, 1, 0.76),
])
pocket11 = body.newObject("PartDesign::Pocket", "Pocket010")
pocket11.Profile = sketch14
pocket11.Length = 2.9

sketch15 = body.newObject("Sketcher::SketchObject", "Sketch014")
sketch15.AttachmentSupport = (doc.getObject("XY_Plane"), [""])
sketch15.MapMode = "FlatFace"
sketch15.AttachmentOffset = App.Placement(V(0, 0, 13), App.Rotation())
sketch15.addGeometry([
    Part.ArcOfCircle(Part.Circle(V(-1.5, 0.7, 0), V(0, 0, 1), 0.5), math.radians(7), math.radians(173)),
    Part.LineSegment(V(-2, 0.8, 0), V(-1, 0.8, 0)),
], False)
sketch15.addConstraint([
    Sketcher.Constraint("Coincident", 0, 1, 1, 2),
    Sketcher.Constraint("Coincident", 1, 1, 0, 2),
    Sketcher.Constraint("Horizontal", 1),
    Sketcher.Constraint("Radius", 0, 0.5),
    Sketcher.Constraint("DistanceX", 0, 3, -1, 1, 1.5),
    Sketcher.Constraint("DistanceY", -1, 1, 0, 3, 0.7),
    Sketcher.Constraint("DistanceY", -1, 1, 0, 1, 0.76),
])
pocket12 = body.newObject("PartDesign::Pocket", "Pocket011")
pocket12.Profile = sketch15
pocket12.Length = 2.9

sketch16 = body.newObject("Sketcher::SketchObject", "Sketch015")
sketch16.AttachmentSupport = (doc.getObject("XY_Plane"), [""])
sketch16.MapMode = "FlatFace"
sketch16.AttachmentOffset = App.Placement(V(0, 0, 13), App.Rotation())
sketch16.addGeometry([
    Part.LineSegment(V(0, -0.8, 0), V(-1, -0.8, 0)),
    Part.ArcOfCircle(Part.Circle(V(-0.5, -0.7, 0), V(0, 0, 1), 0.5), math.radians(-173), math.radians(-7)),
], False)
sketch16.addConstraint([
    Sketcher.Constraint("Coincident", 0, 1, 1, 2),
    Sketcher.Constraint("Coincident", 1, 1, 0, 2),
    Sketcher.Constraint("Horizontal", 0),
    Sketcher.Constraint("Radius", 1, 0.5),
    Sketcher.Constraint("DistanceX", 1, 3, -1, 1, 0.5),
    Sketcher.Constraint("DistanceY", 1, 3, -1, 1, 0.7),
    Sketcher.Constraint("DistanceY", 0, 1, -1, 1, 0.76),
])
pocket13 = body.newObject("PartDesign::Pocket", "Pocket012")
pocket13.Profile = sketch16
pocket13.Length = 2.9

sketch17 = body.newObject("Sketcher::SketchObject", "Sketch016")
sketch17.AttachmentSupport = (doc.getObject("XY_Plane"), [""])
sketch17.MapMode = "FlatFace"
sketch17.AttachmentOffset = App.Placement(V(0, 0, 13), App.Rotation())
sketch17.addGeometry([
    Part.LineSegment(V(2, -0.8, 0), V(1, -0.8, 0)),
    Part.ArcOfCircle(Part.Circle(V(1.5, -0.7, 0), V(0, 0, 1), 0.5), math.radians(-173), math.radians(-7)),
], False)
sketch17.addConstraint([
    Sketcher.Constraint("Coincident", 0, 1, 1, 2),
    Sketcher.Constraint("Coincident", 1, 1, 0, 2),
    Sketcher.Constraint("Horizontal", 0),
    Sketcher.Constraint("Radius", 1, 0.5),
    Sketcher.Constraint("DistanceX", -1, 1, 1, 3, 1.5),
    Sketcher.Constraint("DistanceY", 1, 3, -1, 1, 0.7),
    Sketcher.Constraint("DistanceY", 0, 1, -1, 1, 0.76),
])
pocket14 = body.newObject("PartDesign::Pocket", "Pocket013")
pocket14.Profile = sketch17
pocket14.Length = 2.9

sketch18 = body.newObject("Sketcher::SketchObject", "Sketch017")
sketch18.AttachmentSupport = (doc.getObject("XZ_Plane"), [""])
sketch18.MapMode = "FlatFace"
sketch18.AttachmentOffset = App.Placement(V(0, 0, 0.56), App.Rotation())
add_polygon(sketch18, [(-2.55, 13), (-2.55, 13.5), (2.55, 13.5), (2.55, 13), (2.05, 12.5), (1.95, 12.5), (1.45, 13), (0.55, 13), (0.05, 12.5), (-0.05, 12.5), (-0.55, 13), (-1.45, 13), (-1.95, 12.5), (-2.05, 12.5)])
sketch18.addConstraint([
    Sketcher.Constraint("Vertical", 0),
    Sketcher.Constraint("Horizontal", 1),
    Sketcher.Constraint("Vertical", 2),
    Sketcher.Constraint("Horizontal", 4),
    Sketcher.Constraint("Horizontal", 6),
    Sketcher.Constraint("Horizontal", 8),
    Sketcher.Constraint("Horizontal", 10),
    Sketcher.Constraint("Horizontal", 12),
    Sketcher.Constraint("Symmetric", 6, 2, 9, 2, -2),
    Sketcher.Constraint("Symmetric", 4, 2, 11, 2, -2),
    Sketcher.Constraint("Symmetric", 2, 2, 13, 2, -2),
    Sketcher.Constraint("Perpendicular", 3, 5),
    Sketcher.Constraint("Perpendicular", 5, 7),
    Sketcher.Constraint("Perpendicular", 7, 9),
    Sketcher.Constraint("Perpendicular", 9, 11),
    Sketcher.Constraint("Perpendicular", 11, 13),
    Sketcher.Constraint("Horizontal", 2, 2, 5, 2),
    Sketcher.Constraint("Horizontal", 4, 2, 7, 2),
    Sketcher.Constraint("Equal", 4, 8),
    Sketcher.Constraint("Equal", 6, 10),
    Sketcher.Constraint("DistanceX", 1, 1, 1, 2, 5.1),
    Sketcher.Constraint("DistanceX", 4, 2, 4, 1, 0.1),
    Sketcher.Constraint("DistanceX", 6, 2, 6, 1, 0.9),
    Sketcher.Constraint("DistanceY", 0, 1, 0, 2, 0.5),
    Sketcher.Constraint("DistanceY", -1, 1, 2, 2, 13.0),
])
pocket15 = body.newObject("PartDesign::Pocket", "Pocket014")
pocket15.Profile = sketch18
pocket15.Length = 1.1

sketch19 = body.newObject("Sketcher::SketchObject", "Sketch018")
sketch19.AttachmentSupport = (doc.getObject("YZ_Plane"), [""])
sketch19.MapMode = "FlatFace"
add_polygon(sketch19, [(-0.41, 12.85), (-0.56, 13), (-0.56, 8), (0.54, 8), (0.54, 13), (0.39, 12.85), (0.39, 8.1), (-0.41, 8.1)])
sketch19.addConstraint([
    Sketcher.Constraint("Vertical", 1),
    Sketcher.Constraint("Horizontal", 2),
    Sketcher.Constraint("Vertical", 3),
    Sketcher.Constraint("Vertical", 5),
    Sketcher.Constraint("Horizontal", 6),
    Sketcher.Constraint("Vertical", 7),
    Sketcher.Constraint("Perpendicular", 0, 4),
    Sketcher.Constraint("Horizontal", 0, 2, 3, 2),
    Sketcher.Constraint("Horizontal", 4, 2, 7, 2),
    Sketcher.Constraint("Equal", 0, 4),
    Sketcher.Constraint("DistanceY", 1, 2, 1, 1, 5.0),
    Sketcher.Constraint("DistanceX", 2, 1, 2, 2, 1.1),
    Sketcher.Constraint("DistanceX", 6, 2, 6, 1, 0.8),
    Sketcher.Constraint("DistanceY", -1, 1, 0, 2, 13.0),
    Sketcher.Constraint("DistanceY", 5, 2, 5, 1, 4.75),
    Sketcher.Constraint("DistanceX", 0, 2, -1, 1, 0.56),
])
pad4 = body.newObject("PartDesign::Pad", "Pad003")
pad4.Profile = sketch19
pad4.Length = 6
pad4.Midplane = True

sketch20 = body.newObject("Sketcher::SketchObject", "Sketch019")
sketch20.AttachmentSupport = (doc.getObject("XY_Plane"), [""])
sketch20.MapMode = "FlatFace"
sketch20.addGeometry(Part.Circle(V(2, 0, 0), V(0, 0, 1), 0.4), False)
sketch20.addConstraint([
    Sketcher.Constraint("PointOnObject", 0, 3, -1),
    Sketcher.Constraint("Diameter", 0, 0.8),
    Sketcher.Constraint("DistanceX", -1, 1, 0, 3, 2.0),
])
pad5 = body.newObject("PartDesign::Pad", "Pad004")
pad5.Profile = sketch20
pad5.Length = 10
pad5.Reversed = True

sketch21 = body.newObject("Sketcher::SketchObject", "Sketch020")
sketch21.AttachmentSupport = (doc.getObject("XY_Plane"), [""])
sketch21.MapMode = "FlatFace"
sketch21.addGeometry(Part.Circle(V(-2, 0, 0), V(0, 0, 1), 0.4), False)
sketch21.addConstraint([
    Sketcher.Constraint("PointOnObject", 0, 3, -1),
    Sketcher.Constraint("Diameter", 0, 0.8),
    Sketcher.Constraint("DistanceX", 0, 3, -1, 1, 2.0),
])
pad6 = body.newObject("PartDesign::Pad", "Pad005")
pad6.Profile = sketch21
pad6.Length = 10
pad6.Reversed = True

sketch22 = body.newObject("Sketcher::SketchObject", "Sketch021")
sketch22.AttachmentSupport = (doc.getObject("YZ_Plane"), [""])
sketch22.MapMode = "FlatFace"
add_polygon(sketch22, [(0.4, -10), (0.4, -9.2), (-0.4, -10)])
sketch22.addConstraint([
    Sketcher.Constraint("Vertical", 0),
    Sketcher.Constraint("Horizontal", 2),
    Sketcher.Constraint("Equal", 2, 0),
    Sketcher.Constraint("DistanceX", 2, 1, 2, 2, 0.8),
    Sketcher.Constraint("DistanceY", 1, 2, -1, 1, 10.0),
    Sketcher.Constraint("DistanceX", -1, 1, 0, 2, 0.4),
])
pocket16 = body.newObject("PartDesign::Pocket", "Pocket015")
pocket16.Profile = sketch22
pocket16.Length = 5
pocket16.Midplane = True

doc.recompute()
